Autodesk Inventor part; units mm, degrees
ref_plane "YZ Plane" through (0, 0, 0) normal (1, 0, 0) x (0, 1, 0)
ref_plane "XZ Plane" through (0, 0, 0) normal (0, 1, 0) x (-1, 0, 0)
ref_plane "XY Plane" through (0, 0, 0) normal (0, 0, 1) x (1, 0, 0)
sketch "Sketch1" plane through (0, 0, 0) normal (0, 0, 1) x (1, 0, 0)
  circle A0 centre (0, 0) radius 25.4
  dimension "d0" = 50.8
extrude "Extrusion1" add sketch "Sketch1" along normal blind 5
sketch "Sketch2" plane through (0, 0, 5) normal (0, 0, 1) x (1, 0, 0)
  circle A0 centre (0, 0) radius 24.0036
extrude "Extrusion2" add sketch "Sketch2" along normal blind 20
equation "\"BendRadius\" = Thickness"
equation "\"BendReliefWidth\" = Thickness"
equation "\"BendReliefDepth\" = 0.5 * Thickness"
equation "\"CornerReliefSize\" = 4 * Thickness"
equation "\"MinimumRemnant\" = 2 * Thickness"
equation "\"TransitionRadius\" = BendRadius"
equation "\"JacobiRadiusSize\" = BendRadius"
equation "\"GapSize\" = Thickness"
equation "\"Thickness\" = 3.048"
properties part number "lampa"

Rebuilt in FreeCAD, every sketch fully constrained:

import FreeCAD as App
import Part
import Sketcher

doc = App.newDocument("Part")
body = doc.addObject("PartDesign::Body", "Body")

# Sketch on XY plane
sketch1 = body.newObject("Sketcher::SketchObject", "Sketch")
sketch1.AttachmentSupport = (doc.getObject("XY_Plane"), [""])
sketch1.MapMode = "FlatFace"
sketch1.addGeometry(Part.Circle(App.Vector(0, 0, 0), App.Vector(0, 0, 1), 25), False)
sketch1.addConstraint([
    Sketcher.Constraint("Coincident", 0, 3, -1, 1),
    Sketcher.Constraint("Diameter", 0, 50.8),
])
pad1 = body.newObject("PartDesign::Pad", "Pad")
pad1.Profile = sketch1
pad1.Length = 5

# Sketch on XY plane
sketch2 = body.newObject("Sketcher::SketchObject", "Sketch001")
sketch2.AttachmentSupport = (doc.getObject("XY_Plane"), [""])
sketch2.MapMode = "FlatFace"
sketch2.AttachmentOffset = App.Placement(App.Vector(0, 0, 5), App.Rotation())
sketch2.addGeometry(Part.Circle(App.Vector(0, 0, 0), App.Vector(0, 0, 1), 24), False)
sketch2.addConstraint([
    Sketcher.Constraint("Coincident", 0, 3, -1, 1),
    Sketcher.Constraint("Diameter", 0, 48.0072),
])
pad2 = body.newObject("PartDesign::Pad", "Pad001")
pad2.Profile = sketch2
pad2.Length = 20

doc.recompute()
